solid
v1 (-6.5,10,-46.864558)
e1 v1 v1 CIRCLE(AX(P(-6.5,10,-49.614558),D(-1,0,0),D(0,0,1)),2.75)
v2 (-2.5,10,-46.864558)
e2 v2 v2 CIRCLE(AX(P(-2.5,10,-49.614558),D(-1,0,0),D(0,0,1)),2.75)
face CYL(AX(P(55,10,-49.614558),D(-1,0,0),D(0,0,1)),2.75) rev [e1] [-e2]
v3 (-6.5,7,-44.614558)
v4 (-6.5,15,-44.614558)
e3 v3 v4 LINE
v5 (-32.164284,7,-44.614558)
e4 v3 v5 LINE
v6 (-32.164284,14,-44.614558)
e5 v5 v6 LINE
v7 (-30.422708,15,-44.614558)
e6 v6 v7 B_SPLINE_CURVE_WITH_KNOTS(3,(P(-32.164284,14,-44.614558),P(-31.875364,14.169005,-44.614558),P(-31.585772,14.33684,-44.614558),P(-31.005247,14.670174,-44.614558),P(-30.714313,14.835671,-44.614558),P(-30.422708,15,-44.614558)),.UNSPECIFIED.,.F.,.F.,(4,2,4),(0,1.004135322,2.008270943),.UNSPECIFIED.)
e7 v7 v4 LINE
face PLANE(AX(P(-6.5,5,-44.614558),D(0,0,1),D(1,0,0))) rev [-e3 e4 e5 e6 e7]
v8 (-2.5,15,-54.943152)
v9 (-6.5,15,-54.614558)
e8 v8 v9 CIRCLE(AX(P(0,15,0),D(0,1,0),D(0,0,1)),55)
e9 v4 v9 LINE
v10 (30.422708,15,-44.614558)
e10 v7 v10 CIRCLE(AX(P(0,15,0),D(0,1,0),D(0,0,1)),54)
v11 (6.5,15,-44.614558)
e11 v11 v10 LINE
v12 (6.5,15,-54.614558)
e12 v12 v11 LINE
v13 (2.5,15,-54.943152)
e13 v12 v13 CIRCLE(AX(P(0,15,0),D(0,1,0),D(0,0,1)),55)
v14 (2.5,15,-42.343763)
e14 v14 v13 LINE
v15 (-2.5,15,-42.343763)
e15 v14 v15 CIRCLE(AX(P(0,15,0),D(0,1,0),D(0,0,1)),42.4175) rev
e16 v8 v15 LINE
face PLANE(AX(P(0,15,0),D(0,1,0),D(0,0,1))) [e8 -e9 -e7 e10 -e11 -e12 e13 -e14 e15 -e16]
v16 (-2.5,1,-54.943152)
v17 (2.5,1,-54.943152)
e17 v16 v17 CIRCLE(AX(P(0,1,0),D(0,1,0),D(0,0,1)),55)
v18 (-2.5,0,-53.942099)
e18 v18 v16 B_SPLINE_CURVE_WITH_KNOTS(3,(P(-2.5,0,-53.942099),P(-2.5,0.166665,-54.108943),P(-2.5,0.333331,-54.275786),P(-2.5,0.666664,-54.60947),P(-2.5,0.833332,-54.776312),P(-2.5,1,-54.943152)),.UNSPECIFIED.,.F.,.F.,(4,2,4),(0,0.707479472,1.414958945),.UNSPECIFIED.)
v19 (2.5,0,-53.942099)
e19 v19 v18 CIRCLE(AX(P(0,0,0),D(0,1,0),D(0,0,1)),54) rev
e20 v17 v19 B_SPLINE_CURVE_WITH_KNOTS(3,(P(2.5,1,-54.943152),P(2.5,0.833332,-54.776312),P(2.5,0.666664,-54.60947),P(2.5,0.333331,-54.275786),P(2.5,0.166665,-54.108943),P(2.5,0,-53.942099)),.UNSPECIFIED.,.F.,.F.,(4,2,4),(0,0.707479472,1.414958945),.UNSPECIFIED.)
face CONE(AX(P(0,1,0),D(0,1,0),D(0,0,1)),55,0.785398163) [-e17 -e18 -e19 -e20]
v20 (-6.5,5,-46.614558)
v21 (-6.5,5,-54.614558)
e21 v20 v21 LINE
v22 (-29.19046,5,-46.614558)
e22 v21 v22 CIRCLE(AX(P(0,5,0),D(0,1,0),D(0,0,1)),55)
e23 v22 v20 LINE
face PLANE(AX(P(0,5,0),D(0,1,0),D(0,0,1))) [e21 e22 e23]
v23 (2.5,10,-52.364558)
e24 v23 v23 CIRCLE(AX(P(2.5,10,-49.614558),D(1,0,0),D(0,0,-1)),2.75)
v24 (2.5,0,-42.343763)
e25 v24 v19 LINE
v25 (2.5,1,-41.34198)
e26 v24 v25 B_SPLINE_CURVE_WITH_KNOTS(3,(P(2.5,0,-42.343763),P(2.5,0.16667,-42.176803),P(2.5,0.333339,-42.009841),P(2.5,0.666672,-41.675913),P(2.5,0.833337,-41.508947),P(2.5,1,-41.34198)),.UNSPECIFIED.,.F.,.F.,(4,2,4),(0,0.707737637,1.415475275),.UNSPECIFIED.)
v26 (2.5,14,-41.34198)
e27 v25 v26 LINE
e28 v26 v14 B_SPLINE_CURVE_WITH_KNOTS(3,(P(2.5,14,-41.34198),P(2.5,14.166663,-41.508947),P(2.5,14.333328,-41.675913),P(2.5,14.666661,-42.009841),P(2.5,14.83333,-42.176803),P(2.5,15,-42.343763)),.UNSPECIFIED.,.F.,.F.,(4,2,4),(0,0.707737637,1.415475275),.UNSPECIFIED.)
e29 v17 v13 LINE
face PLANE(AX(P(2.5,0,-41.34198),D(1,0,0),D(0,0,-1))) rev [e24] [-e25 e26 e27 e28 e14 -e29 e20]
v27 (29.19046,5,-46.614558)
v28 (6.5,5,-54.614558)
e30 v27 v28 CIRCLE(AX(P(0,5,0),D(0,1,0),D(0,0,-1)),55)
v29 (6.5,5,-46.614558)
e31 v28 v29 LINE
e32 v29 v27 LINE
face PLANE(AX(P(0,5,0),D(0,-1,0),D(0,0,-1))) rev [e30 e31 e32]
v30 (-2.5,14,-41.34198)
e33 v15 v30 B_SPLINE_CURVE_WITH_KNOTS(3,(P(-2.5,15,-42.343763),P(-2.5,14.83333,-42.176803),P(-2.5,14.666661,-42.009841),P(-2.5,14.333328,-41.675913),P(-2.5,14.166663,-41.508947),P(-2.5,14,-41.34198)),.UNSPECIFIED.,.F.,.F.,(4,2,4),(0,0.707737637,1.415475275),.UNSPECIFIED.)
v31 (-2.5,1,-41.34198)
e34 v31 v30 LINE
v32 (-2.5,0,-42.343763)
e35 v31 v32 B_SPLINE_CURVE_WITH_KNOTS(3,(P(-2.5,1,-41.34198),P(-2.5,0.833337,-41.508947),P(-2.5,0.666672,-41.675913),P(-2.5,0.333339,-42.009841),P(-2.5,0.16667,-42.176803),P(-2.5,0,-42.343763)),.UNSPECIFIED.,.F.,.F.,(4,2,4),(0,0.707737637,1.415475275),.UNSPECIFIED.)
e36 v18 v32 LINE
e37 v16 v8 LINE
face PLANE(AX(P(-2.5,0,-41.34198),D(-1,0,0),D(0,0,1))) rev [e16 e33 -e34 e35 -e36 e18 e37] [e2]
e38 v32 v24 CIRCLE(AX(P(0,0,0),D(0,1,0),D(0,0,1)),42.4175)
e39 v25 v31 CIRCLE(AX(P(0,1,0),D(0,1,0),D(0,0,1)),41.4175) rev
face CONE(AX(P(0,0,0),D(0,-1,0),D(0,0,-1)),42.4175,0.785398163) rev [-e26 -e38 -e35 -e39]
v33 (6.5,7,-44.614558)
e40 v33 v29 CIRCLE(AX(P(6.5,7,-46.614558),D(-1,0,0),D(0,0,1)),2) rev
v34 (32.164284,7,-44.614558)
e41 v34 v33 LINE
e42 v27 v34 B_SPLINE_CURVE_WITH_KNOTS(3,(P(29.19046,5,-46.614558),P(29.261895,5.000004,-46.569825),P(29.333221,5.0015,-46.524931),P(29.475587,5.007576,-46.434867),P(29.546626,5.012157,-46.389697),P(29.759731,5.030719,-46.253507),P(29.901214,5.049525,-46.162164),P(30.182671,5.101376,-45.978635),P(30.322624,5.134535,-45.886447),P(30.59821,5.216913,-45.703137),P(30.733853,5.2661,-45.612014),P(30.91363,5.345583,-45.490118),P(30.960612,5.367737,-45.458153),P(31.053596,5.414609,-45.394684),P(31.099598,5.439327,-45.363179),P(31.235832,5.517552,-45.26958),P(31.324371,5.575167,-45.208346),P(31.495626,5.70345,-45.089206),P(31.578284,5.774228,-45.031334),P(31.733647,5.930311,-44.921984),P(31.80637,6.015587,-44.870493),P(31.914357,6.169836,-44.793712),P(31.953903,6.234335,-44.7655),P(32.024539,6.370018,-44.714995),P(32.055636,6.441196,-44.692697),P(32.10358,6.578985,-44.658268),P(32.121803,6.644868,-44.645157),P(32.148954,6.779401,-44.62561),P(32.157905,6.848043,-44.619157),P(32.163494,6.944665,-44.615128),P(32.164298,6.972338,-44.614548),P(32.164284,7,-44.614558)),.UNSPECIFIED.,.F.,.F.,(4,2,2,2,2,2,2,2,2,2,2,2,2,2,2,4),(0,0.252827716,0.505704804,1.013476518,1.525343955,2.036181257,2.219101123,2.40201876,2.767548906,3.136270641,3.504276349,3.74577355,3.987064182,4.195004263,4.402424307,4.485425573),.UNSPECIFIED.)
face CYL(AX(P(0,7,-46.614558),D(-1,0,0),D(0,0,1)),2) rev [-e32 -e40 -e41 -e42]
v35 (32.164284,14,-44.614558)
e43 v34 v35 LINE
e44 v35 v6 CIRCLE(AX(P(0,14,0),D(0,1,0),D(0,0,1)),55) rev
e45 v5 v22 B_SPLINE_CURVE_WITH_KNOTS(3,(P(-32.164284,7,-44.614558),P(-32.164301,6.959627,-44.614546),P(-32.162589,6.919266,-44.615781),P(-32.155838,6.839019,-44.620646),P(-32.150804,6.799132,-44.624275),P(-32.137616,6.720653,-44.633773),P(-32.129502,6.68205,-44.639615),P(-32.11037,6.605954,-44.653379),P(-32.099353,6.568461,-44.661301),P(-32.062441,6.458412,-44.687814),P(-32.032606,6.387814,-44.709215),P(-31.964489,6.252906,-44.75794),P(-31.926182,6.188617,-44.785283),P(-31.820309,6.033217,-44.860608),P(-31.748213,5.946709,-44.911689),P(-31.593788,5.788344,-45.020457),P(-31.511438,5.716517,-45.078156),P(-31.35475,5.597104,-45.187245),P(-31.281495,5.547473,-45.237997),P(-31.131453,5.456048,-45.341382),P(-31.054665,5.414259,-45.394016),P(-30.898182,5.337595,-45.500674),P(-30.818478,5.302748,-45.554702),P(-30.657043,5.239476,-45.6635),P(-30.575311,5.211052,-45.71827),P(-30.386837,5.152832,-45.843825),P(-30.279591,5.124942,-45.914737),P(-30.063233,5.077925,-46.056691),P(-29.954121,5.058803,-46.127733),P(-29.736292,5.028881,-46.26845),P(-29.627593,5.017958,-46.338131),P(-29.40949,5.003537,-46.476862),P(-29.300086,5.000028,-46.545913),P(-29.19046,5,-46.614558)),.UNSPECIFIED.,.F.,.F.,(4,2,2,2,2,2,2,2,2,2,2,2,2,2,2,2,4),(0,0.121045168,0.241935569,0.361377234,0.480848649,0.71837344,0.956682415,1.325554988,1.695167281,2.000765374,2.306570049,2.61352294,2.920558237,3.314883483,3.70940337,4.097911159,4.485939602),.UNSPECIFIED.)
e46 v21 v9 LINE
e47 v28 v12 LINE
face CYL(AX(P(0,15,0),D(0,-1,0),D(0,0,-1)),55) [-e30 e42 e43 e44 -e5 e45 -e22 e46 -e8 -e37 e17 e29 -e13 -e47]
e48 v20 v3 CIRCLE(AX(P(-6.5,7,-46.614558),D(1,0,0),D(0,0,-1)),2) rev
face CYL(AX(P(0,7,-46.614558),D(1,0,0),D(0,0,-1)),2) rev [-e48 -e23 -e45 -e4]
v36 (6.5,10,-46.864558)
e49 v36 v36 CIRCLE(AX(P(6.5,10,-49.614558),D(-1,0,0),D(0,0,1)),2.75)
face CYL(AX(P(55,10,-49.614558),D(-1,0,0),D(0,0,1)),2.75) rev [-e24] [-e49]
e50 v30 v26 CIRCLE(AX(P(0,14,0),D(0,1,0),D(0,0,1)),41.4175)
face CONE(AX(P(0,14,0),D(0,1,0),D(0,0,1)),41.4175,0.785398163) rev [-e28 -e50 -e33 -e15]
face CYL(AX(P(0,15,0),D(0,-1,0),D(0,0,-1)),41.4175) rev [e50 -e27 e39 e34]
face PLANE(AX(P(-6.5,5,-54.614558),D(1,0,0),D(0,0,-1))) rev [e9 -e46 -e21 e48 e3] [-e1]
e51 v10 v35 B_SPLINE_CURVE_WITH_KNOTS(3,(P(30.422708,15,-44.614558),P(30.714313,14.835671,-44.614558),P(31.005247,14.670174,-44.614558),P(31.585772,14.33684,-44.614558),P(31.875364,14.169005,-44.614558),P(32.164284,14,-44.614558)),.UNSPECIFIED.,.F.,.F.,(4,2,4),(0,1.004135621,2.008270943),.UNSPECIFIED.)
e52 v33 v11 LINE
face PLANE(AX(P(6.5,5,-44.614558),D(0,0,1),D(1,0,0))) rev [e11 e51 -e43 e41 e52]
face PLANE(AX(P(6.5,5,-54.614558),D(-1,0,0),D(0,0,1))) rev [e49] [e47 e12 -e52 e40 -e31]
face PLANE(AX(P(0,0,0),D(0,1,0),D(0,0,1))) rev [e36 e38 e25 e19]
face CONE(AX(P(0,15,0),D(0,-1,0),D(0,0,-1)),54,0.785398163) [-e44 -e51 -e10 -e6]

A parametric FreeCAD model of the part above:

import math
import FreeCAD as App
import Part
import Sketcher
from FreeCAD import Vector
Q = App.Units.Quantity


def edges_at(feature, points):
    """Names of the edges that pass closest to the given points."""
    edges = feature.Shape.Edges
    near = lambda p: min(range(len(edges)), key=lambda i: edges[i].distToShape(Part.Vertex(*p))[0])
    return sorted({f"Edge{near(p) + 1}" for p in points})

doc = App.newDocument("Part")
body = doc.addObject("PartDesign::Body", "Body")

# Sketch on XZ plane
sketch1 = body.newObject("Sketcher::SketchObject", "Sketch")
sketch1.AttachmentSupport = (doc.getObject("XZ_Plane"), [""])
sketch1.MapMode = "FlatFace"
sketch1.addGeometry([
    Part.Circle(Vector(0, 0, 0), Vector(0, 0, 1), 55),
    Part.Circle(Vector(0, 0, 0), Vector(0, 0, 1), 41),
], False)
sketch1.addConstraint([
    Sketcher.Constraint("Coincident", 0, 3, -1, 1),
    Sketcher.Constraint("Coincident", 1, 3, -1, 1),
    Sketcher.Constraint("Diameter", 0, Q("110 mm")),
    Sketcher.Constraint("Diameter", 1, Q("82.835 mm")),
])
pad1 = body.newObject("PartDesign::Pad", "Pad")
pad1.Profile = sketch1
pad1.Length = 15
pad1.Reversed = True

# Sketch on XZ plane
sketch2 = body.newObject("Sketcher::SketchObject", "Sketch001")
sketch2.AttachmentSupport = (doc.getObject("XZ_Plane"), [""])
sketch2.MapMode = "FlatFace"
sketch2.AttachmentOffset = App.Placement(Vector(0, 0, -15), App.Rotation())
sketch2.addGeometry([
    Part.LineSegment(Vector(-2, -55, 0), Vector(-2, -41, 0)),
    Part.ArcOfCircle(Part.Circle(Vector(0, 0, 0), Vector(0, 0, 1), 41), math.radians(-93.46), math.radians(-86.54)),
    Part.LineSegment(Vector(2, -41, 0), Vector(2, -55, 0)),
    Part.ArcOfCircle(Part.Circle(Vector(0, 0, 0), Vector(0, 0, 1), 55), math.radians(-92.61), math.radians(-87.39)),
], False)
sketch2.addConstraint([
    Sketcher.Constraint("Coincident", 0, 2, 1, 1),
    Sketcher.Constraint("Coincident", 1, 2, 2, 1),
    Sketcher.Constraint("Coincident", 2, 2, 3, 2),
    Sketcher.Constraint("Coincident", 3, 1, 0, 1),
    Sketcher.Constraint("Vertical", 0),
    Sketcher.Constraint("Vertical", 2),
    Sketcher.Constraint("Coincident", 1, 3, -1, 1),
    Sketcher.Constraint("Coincident", 3, 3, -1, 1),
    Sketcher.Constraint("Horizontal", 0, 2, 1, 2),
    Sketcher.Constraint("Radius", 3, Q("55 mm")),
    Sketcher.Constraint("DistanceX", 0, 2, 1, 2, Q("5 mm")),
    Sketcher.Constraint("Radius", 1, Q("41.4175 mm")),
])
pocket1 = body.newObject("PartDesign::Pocket", "Pocket")
pocket1.Profile = sketch2
pocket1.Type = "ThroughAll"
pocket1.Reversed = True

# Sketch on XZ plane
sketch3 = body.newObject("Sketcher::SketchObject", "Sketch002")
sketch3.AttachmentSupport = (doc.getObject("XZ_Plane"), [""])
sketch3.MapMode = "FlatFace"
sketch3.AttachmentOffset = App.Placement(Vector(0, 0, -5), App.Rotation())
sketch3.addGeometry([
    Part.LineSegment(Vector(-6, -45, 0), Vector(-6, -55, 0)),  # 0
    Part.ArcOfCircle(Part.Circle(Vector(0, 0, 0), Vector(0, 0, 1), 55), math.radians(-126), math.radians(-97)),  # 1
    Part.LineSegment(Vector(-32, -45, 0), Vector(-6, -45, 0)),  # 2
    Part.LineSegment(Vector(6, -45, 0), Vector(32, -45, 0)),  # 3
    Part.ArcOfCircle(Part.Circle(Vector(0, 0, 0), Vector(0, 0, 1), 55), math.radians(-83), math.radians(-54)),  # 4
    Part.LineSegment(Vector(6, -55, 0), Vector(6, -45, 0)),  # 5
], False)
sketch3.addConstraint([
    Sketcher.Constraint("Coincident", 0, 2, 1, 2),
    Sketcher.Constraint("Coincident", 1, 1, 2, 1),
    Sketcher.Constraint("Coincident", 2, 2, 0, 1),
    Sketcher.Constraint("Coincident", 3, 2, 4, 2),
    Sketcher.Constraint("Coincident", 4, 1, 5, 1),
    Sketcher.Constraint("Coincident", 5, 2, 3, 1),
    Sketcher.Constraint("Vertical", 0),
    Sketcher.Constraint("Horizontal", 2),
    Sketcher.Constraint("Horizontal", 3),
    Sketcher.Constraint("Vertical", 5),
    Sketcher.Constraint("Coincident", 1, 3, -1, 1),
    Sketcher.Constraint("Coincident", 4, 3, -1, 1),
    Sketcher.Constraint("Equal", 1, 4),
    Sketcher.Constraint("Symmetric", 2, 2, 5, 2, -2),
    Sketcher.Constraint("Radius", 1, Q("55 mm")),
    Sketcher.Constraint("DistanceY", 0, 2, 0, 1, Q("10 mm")),
    Sketcher.Constraint("DistanceX", 0, 2, 4, 1, Q("13 mm")),
])
pocket2 = body.newObject("PartDesign::Pocket", "Pocket001")
pocket2.Profile = sketch3
pocket2.Length = 10

# Sketch on YZ plane
sketch4 = body.newObject("Sketcher::SketchObject", "Sketch003")
sketch4.AttachmentSupport = (doc.getObject("YZ_Plane"), [""])
sketch4.MapMode = "FlatFace"
sketch4.AttachmentOffset = App.Placement(Vector(0, 0, -6.5), App.Rotation())
sketch4.addGeometry(Part.Circle(Vector(10, -49.6, 0), Vector(0, 0, 1), 2.8), False)
sketch4.addConstraint([
    Sketcher.Constraint("Diameter", 0, Q("5.5 mm")),
    Sketcher.Constraint("DistanceX", -1, 1, 0, 3, Q("10 mm")),
    Sketcher.Constraint("DistanceY", 0, 3, -1, 1, Q("49.614558 mm")),
])
pocket3 = body.newObject("PartDesign::Pocket", "Pocket002")
pocket3.Profile = sketch4
pocket3.Type = "ThroughAll"
pocket3.Reversed = True
doc.recompute()

fillet = body.newObject("PartDesign::Fillet", "Fillet")
fillet.Base = (pocket3, edges_at(pocket3, [(-19.332, 5, -44.615), (19.332, 5, -44.615)]))
fillet.Radius = 2
doc.recompute()

chamfer = body.newObject("PartDesign::Chamfer", "Chamfer")
chamfer.Base = (fillet, edges_at(fillet, [(0, 0, 55), (0, 15, 55)]))
chamfer.Size = 1
doc.recompute()

chamfer2 = body.newObject("PartDesign::Chamfer", "Chamfer001")
chamfer2.Base = (chamfer, edges_at(chamfer, [(-41.399, 0, 1.251), (41.399, 15, 1.251)]))
chamfer2.Size = 1

doc.recompute()
